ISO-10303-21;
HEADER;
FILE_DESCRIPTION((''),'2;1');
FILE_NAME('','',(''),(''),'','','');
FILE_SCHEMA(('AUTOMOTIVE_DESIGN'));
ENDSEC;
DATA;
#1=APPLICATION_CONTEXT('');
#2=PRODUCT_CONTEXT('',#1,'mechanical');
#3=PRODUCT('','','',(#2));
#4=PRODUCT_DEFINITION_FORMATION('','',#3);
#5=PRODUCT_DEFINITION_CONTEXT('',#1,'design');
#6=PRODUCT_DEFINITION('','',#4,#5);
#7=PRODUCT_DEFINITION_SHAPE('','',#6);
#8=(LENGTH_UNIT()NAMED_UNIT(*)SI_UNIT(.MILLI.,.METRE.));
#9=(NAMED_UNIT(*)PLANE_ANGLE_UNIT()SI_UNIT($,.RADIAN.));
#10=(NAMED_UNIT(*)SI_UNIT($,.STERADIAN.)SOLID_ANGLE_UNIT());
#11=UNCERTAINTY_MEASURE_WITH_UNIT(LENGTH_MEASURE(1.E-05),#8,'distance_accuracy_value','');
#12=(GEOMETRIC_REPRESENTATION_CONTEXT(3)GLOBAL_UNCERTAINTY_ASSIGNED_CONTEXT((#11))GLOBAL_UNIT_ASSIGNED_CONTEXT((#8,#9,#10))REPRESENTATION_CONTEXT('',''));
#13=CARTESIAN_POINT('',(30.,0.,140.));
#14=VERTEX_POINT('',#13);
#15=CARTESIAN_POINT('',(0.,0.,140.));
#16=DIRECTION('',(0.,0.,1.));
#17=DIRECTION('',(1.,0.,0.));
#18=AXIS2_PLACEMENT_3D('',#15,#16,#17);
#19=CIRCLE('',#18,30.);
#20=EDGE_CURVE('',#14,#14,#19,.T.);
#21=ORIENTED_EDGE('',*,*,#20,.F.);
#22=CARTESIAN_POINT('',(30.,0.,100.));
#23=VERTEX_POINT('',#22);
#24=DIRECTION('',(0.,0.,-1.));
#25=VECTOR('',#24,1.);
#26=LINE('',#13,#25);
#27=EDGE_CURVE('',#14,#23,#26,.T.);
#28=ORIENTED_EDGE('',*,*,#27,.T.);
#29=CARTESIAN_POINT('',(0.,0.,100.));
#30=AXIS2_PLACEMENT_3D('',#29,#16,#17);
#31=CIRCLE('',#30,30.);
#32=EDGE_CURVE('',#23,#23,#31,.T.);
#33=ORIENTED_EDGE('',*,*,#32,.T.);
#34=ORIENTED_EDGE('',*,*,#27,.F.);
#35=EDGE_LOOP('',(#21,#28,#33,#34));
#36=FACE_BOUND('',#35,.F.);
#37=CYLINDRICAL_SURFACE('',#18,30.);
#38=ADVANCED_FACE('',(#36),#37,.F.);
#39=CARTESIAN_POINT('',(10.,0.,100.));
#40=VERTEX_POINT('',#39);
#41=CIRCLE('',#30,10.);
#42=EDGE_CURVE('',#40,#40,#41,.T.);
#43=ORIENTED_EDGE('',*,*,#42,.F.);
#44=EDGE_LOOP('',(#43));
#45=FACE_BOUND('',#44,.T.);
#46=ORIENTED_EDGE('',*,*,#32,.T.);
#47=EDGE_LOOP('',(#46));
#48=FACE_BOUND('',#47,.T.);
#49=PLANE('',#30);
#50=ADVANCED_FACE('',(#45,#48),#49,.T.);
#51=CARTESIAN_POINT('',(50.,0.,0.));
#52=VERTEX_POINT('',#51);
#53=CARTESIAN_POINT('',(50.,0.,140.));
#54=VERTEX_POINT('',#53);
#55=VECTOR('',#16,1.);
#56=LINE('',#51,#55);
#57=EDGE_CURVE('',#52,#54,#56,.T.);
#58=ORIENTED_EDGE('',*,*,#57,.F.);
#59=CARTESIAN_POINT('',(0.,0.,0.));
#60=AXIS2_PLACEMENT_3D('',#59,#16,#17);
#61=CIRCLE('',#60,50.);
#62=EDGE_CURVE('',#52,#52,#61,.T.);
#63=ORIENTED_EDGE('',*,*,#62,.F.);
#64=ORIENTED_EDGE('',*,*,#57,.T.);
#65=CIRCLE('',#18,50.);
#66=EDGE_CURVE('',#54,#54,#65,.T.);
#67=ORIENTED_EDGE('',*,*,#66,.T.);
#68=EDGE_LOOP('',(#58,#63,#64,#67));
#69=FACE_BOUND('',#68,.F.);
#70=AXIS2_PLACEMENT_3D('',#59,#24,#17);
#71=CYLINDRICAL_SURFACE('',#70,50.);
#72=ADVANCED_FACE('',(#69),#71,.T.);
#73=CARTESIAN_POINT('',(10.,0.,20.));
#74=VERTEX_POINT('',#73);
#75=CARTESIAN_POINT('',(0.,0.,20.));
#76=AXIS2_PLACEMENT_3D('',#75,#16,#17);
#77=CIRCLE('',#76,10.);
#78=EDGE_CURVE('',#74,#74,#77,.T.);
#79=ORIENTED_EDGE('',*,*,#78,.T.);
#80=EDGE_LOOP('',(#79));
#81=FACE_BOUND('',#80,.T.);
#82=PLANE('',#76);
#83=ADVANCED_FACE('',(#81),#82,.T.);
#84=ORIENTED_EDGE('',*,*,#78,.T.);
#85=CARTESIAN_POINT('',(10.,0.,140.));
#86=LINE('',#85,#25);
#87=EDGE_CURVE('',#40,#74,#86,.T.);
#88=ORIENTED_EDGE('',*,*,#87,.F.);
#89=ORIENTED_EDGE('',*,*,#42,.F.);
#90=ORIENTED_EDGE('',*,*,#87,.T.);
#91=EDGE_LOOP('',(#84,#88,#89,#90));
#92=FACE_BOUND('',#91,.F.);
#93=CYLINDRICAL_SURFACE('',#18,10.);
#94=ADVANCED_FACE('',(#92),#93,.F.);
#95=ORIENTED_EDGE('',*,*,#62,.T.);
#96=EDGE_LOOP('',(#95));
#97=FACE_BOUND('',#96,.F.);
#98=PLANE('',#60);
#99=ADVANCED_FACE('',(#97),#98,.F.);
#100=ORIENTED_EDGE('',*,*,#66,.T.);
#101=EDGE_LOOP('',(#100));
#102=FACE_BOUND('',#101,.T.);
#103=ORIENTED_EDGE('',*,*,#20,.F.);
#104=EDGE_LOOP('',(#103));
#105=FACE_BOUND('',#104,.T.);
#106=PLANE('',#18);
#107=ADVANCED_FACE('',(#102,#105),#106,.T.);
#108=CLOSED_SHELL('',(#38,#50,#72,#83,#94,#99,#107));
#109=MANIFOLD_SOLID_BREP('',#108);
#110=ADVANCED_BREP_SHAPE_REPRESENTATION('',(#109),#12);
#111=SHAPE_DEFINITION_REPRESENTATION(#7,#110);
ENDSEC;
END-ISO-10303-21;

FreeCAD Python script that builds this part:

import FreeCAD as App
import Part
import Sketcher
from FreeCAD import Vector

doc = App.newDocument("Part")
body = doc.addObject("PartDesign::Body", "Body")

sketch1 = doc.addObject("Sketcher::SketchObject", "Sketch")
body.addObject(sketch1)
sketch1.AttachmentSupport = (doc.XY_Plane, [""])
sketch1.MapMode = "FlatFace"
sketch1.addGeometry(Part.Circle(Vector(0, 0, 0), Vector(0, 0, 1), 50), False)
sketch1.addConstraint([
    Sketcher.Constraint("Coincident", 0, 3, -1, 1),
    Sketcher.Constraint("Diameter", 0, 100.0),
])
pad1 = doc.addObject("PartDesign::Pad", "Pad")
body.addObject(pad1)
pad1.Profile = sketch1
pad1.Length = 140

sketch2 = doc.addObject("Sketcher::SketchObject", "Sketch001")
body.addObject(sketch2)
sketch2.AttachmentSupport = (doc.XY_Plane, [""])
sketch2.MapMode = "FlatFace"
sketch2.AttachmentOffset = App.Placement(Vector(0, 0, 140), App.Rotation())
sketch2.addGeometry(Part.Circle(Vector(0, 0, 0), Vector(0, 0, 1), 30), False)
sketch2.addConstraint([
    Sketcher.Constraint("Coincident", 0, 3, -1, 1),
    Sketcher.Constraint("Diameter", 0, 60.0),
])
pocket1 = doc.addObject("PartDesign::Pocket", "Pocket")
body.addObject(pocket1)
pocket1.Profile = sketch2
pocket1.Length = 40

sketch3 = doc.addObject("Sketcher::SketchObject", "Sketch002")
body.addObject(sketch3)
sketch3.AttachmentSupport = (doc.XY_Plane, [""])
sketch3.MapMode = "FlatFace"
sketch3.AttachmentOffset = App.Placement(Vector(0, 0, 140), App.Rotation())
sketch3.addGeometry(Part.Circle(Vector(0, 0, 0), Vector(0, 0, 1), 10), False)
sketch3.addConstraint([
    Sketcher.Constraint("Coincident", 0, 3, -1, 1),
    Sketcher.Constraint("Diameter", 0, 20.0),
])
pocket2 = doc.addObject("PartDesign::Pocket", "Pocket001")
body.addObject(pocket2)
pocket2.Profile = sketch3
pocket2.Length = 120

doc.recompute()
